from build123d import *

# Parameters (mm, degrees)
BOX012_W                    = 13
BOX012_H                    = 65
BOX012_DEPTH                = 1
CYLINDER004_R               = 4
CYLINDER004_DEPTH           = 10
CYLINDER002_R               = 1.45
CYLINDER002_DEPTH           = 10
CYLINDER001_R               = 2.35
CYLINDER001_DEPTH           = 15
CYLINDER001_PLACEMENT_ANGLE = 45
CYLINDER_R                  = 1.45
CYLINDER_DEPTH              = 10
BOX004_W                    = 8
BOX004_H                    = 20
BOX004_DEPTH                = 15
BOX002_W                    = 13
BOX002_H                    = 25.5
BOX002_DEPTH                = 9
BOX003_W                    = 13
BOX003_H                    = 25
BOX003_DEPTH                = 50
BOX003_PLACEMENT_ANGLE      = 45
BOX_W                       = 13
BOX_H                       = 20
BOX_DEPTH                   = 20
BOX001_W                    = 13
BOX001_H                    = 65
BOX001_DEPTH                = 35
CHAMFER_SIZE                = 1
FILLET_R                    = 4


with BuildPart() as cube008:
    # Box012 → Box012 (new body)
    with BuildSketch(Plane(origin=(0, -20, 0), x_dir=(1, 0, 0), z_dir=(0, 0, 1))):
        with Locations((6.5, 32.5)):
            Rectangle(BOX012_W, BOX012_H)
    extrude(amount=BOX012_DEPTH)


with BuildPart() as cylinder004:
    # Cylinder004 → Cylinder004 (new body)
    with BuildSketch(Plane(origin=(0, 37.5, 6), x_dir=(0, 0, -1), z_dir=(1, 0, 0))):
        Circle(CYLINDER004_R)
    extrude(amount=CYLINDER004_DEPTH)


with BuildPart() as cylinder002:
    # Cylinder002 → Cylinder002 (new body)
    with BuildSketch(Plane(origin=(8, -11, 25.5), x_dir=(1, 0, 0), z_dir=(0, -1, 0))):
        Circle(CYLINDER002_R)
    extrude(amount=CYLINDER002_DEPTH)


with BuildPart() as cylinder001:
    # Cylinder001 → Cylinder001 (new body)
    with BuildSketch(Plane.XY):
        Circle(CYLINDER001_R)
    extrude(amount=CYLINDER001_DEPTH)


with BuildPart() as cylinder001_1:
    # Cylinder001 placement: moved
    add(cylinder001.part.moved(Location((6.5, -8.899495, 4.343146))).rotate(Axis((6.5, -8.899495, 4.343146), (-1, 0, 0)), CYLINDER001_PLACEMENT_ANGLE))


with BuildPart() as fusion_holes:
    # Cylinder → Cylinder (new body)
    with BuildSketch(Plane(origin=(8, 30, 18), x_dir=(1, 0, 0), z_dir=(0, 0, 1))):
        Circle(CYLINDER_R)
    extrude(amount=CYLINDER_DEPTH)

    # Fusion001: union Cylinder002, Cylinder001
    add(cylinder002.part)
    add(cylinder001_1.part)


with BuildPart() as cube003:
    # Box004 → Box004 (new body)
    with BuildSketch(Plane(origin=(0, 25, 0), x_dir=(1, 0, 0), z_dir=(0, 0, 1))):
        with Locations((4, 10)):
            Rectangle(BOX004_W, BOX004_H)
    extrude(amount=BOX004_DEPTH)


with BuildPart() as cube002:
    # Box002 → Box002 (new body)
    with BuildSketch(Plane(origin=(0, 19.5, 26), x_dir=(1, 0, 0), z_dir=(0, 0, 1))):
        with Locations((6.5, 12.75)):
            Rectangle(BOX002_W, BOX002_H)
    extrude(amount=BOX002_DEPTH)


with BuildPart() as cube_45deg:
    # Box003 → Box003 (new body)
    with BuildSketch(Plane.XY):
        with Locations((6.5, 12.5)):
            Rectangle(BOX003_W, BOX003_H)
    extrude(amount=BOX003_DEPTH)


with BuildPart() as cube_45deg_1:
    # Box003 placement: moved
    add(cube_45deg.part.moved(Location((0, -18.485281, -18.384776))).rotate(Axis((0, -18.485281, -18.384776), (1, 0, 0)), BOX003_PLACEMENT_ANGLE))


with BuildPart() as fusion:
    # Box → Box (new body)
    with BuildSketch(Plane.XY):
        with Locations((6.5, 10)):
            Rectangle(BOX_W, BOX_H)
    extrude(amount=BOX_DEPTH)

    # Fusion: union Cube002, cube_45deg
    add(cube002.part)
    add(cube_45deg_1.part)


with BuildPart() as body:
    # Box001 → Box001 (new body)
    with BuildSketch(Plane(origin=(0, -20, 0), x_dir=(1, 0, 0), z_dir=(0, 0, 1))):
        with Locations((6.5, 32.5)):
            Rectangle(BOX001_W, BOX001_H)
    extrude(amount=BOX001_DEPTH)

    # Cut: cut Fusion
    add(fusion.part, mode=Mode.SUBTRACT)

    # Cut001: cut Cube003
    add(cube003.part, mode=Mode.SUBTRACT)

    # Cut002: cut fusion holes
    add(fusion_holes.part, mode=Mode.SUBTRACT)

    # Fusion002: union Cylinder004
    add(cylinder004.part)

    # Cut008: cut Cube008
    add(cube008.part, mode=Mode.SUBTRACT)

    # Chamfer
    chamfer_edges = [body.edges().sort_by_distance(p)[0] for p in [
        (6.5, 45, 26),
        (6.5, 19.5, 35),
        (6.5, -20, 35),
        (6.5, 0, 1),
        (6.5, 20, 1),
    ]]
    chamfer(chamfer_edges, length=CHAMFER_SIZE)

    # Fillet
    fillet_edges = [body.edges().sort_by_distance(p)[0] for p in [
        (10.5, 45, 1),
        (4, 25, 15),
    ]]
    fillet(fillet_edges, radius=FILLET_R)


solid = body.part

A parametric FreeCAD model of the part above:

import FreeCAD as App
import Part
import Sketcher
Q = App.Units.Quantity


def edges_at(feature, points):
    """Names of the edges that pass closest to the given points."""
    edges = feature.Shape.Edges
    near = lambda p: min(range(len(edges)), key=lambda i: edges[i].distToShape(Part.Vertex(*p))[0])
    return sorted({f"Edge{near(p) + 1}" for p in points})


def add_polygon(sketch, points):
    """Adds a closed chain of lines whose ends are joined by coincident constraints."""
    first, n = sketch.GeometryCount, len(points)
    for a, b in zip(points, points[1:] + points[:1]):
        sketch.addGeometry(Part.LineSegment(App.Vector(*a, 0), App.Vector(*b, 0)), False)
    for i in range(n):
        sketch.addConstraint(Sketcher.Constraint("Coincident", first + i, 2, first + (i + 1) % n, 1))

doc = App.newDocument("Part")
body = doc.addObject("PartDesign::Body", "Body")

# Sketch on XY plane
sketch1 = body.newObject("Sketcher::SketchObject", "Sketch")
sketch1.AttachmentSupport = (doc.getObject("XY_Plane"), [""])
sketch1.MapMode = "FlatFace"
add_polygon(sketch1, [(0, 45), (0, -20), (13, -20), (13, 45)])  # lines 0-3
sketch1.addConstraint([
    Sketcher.Constraint("Vertical", 0),
    Sketcher.Constraint("Horizontal", 1),
    Sketcher.Constraint("Vertical", 2),
    Sketcher.Constraint("Horizontal", 3),
    Sketcher.Constraint("PointOnObject", 0, 2, -2),
    Sketcher.Constraint("DistanceX", 1, 1, 1, 2, Q("13 mm")),
    Sketcher.Constraint("DistanceY", 0, 2, 0, 1, Q("65 mm")),
    Sketcher.Constraint("DistanceY", 0, 2, -1, 1, Q("20 mm")),
])
pad1 = body.newObject("PartDesign::Pad", "Pad")
pad1.Profile = sketch1
pad1.Length = 1
body2 = doc.addObject("PartDesign::Body", "Body001")

# Sketch on YZ plane
sketch2 = body2.newObject("Sketcher::SketchObject", "Sketch001")
sketch2.AttachmentSupport = (doc.getObject("YZ_Plane001"), [""])
sketch2.MapMode = "FlatFace"
sketch2.addGeometry(Part.Circle(App.Vector(37.5, 6, 0), App.Vector(0, 0, 1), 4), False)
sketch2.addConstraint([
    Sketcher.Constraint("Diameter", 0, Q("8 mm")),
    Sketcher.Constraint("DistanceY", -1, 1, 0, 3, Q("6 mm")),
    Sketcher.Constraint("DistanceX", -1, 1, 0, 3, Q("37.5 mm")),
])
pad2 = body2.newObject("PartDesign::Pad", "Pad001")
pad2.Profile = sketch2
pad2.Length = 10
body3 = doc.addObject("PartDesign::Body", "Body002")

# Sketch on XZ plane
sketch3 = body3.newObject("Sketcher::SketchObject", "Sketch002")
sketch3.AttachmentSupport = (doc.getObject("XZ_Plane002"), [""])
sketch3.MapMode = "FlatFace"
sketch3.AttachmentOffset = App.Placement(App.Vector(0, 0, 11), App.Rotation())
sketch3.addGeometry(Part.Circle(App.Vector(8, 25.5, 0), App.Vector(0, 0, 1), 1.4), False)
sketch3.addConstraint([
    Sketcher.Constraint("Diameter", 0, Q("2.9 mm")),
    Sketcher.Constraint("DistanceX", -1, 1, 0, 3, Q("8 mm")),
    Sketcher.Constraint("DistanceY", -1, 1, 0, 3, Q("25.5 mm")),
])
pad3 = body3.newObject("PartDesign::Pad", "Pad002")
pad3.Profile = sketch3
pad3.Length = 10
body4 = doc.addObject("PartDesign::Body", "Body003")

# Sketch on XY plane
sketch4 = body4.newObject("Sketcher::SketchObject", "Sketch003")
sketch4.AttachmentSupport = (doc.getObject("XY_Plane003"), [""])
sketch4.MapMode = "FlatFace"
sketch4.addGeometry(Part.Circle(App.Vector(0, 0, 0), App.Vector(0, 0, 1), 2.4), False)
sketch4.addConstraint([
    Sketcher.Constraint("Coincident", 0, 3, -1, 1),
    Sketcher.Constraint("Diameter", 0, Q("4.7 mm")),
])
pad4 = body4.newObject("PartDesign::Pad", "Pad003")
pad4.Profile = sketch4
pad4.Length = 15
body5 = doc.addObject("PartDesign::Body", "Body004")
doc.recompute()

body4.Placement = App.Placement(App.Vector(6.5, -8.899495, 4.343146), App.Rotation(App.Vector(-1, 0, 0), 45))
boolean = body5.newObject("PartDesign::Boolean", "Boolean")
boolean.Type = "Fuse"
boolean.addObjects([body4])
body6 = doc.addObject("PartDesign::Body", "Body005")
body6.AllowCompound = True

# Sketch on XY plane
sketch5 = body6.newObject("Sketcher::SketchObject", "Sketch004")
sketch5.AttachmentSupport = (doc.getObject("XY_Plane005"), [""])
sketch5.MapMode = "FlatFace"
sketch5.AttachmentOffset = App.Placement(App.Vector(0, 0, 18), App.Rotation())
sketch5.addGeometry(Part.Circle(App.Vector(8, 30, 0), App.Vector(0, 0, 1), 1.4), False)
sketch5.addConstraint([
    Sketcher.Constraint("Diameter", 0, Q("2.9 mm")),
    Sketcher.Constraint("DistanceX", -1, 1, 0, 3, Q("8 mm")),
    Sketcher.Constraint("DistanceY", -1, 1, 0, 3, Q("30 mm")),
])
pad5 = body6.newObject("PartDesign::Pad", "Pad004")
pad5.Profile = sketch5
pad5.Length = 10
doc.recompute()

boolean2 = body6.newObject("PartDesign::Boolean", "Boolean001")
boolean2.Type = "Fuse"
boolean2.addObjects([body3])
doc.recompute()

boolean3 = body6.newObject("PartDesign::Boolean", "Boolean002")
boolean3.Type = "Fuse"
boolean3.addObjects([body5])
body7 = doc.addObject("PartDesign::Body", "Body006")

# Sketch on XY plane
sketch6 = body7.newObject("Sketcher::SketchObject", "Sketch005")
sketch6.AttachmentSupport = (doc.getObject("XY_Plane006"), [""])
sketch6.MapMode = "FlatFace"
add_polygon(sketch6, [(0, 45), (0, 25), (8, 25), (8, 45)])  # lines 0-3
sketch6.addConstraint([
    Sketcher.Constraint("Vertical", 0),
    Sketcher.Constraint("Horizontal", 1),
    Sketcher.Constraint("Vertical", 2),
    Sketcher.Constraint("Horizontal", 3),
    Sketcher.Constraint("PointOnObject", 0, 2, -2),
    Sketcher.Constraint("DistanceX", 1, 1, 1, 2, Q("8 mm")),
    Sketcher.Constraint("DistanceY", 0, 2, 0, 1, Q("20 mm")),
    Sketcher.Constraint("DistanceY", -1, 1, 0, 2, Q("25 mm")),
])
pad6 = body7.newObject("PartDesign::Pad", "Pad005")
pad6.Profile = sketch6
pad6.Length = 15
body8 = doc.addObject("PartDesign::Body", "Body007")

# Sketch on XY plane
sketch7 = body8.newObject("Sketcher::SketchObject", "Sketch006")
sketch7.AttachmentSupport = (doc.getObject("XY_Plane007"), [""])
sketch7.MapMode = "FlatFace"
sketch7.AttachmentOffset = App.Placement(App.Vector(0, 0, 26), App.Rotation())
add_polygon(sketch7, [(0, 45), (0, 20), (13, 20), (13, 45)])  # lines 0-3
sketch7.addConstraint([
    Sketcher.Constraint("Vertical", 0),
    Sketcher.Constraint("Horizontal", 1),
    Sketcher.Constraint("Vertical", 2),
    Sketcher.Constraint("Horizontal", 3),
    Sketcher.Constraint("PointOnObject", 0, 2, -2),
    Sketcher.Constraint("DistanceX", 1, 1, 1, 2, Q("13 mm")),
    Sketcher.Constraint("DistanceY", 0, 2, 0, 1, Q("25.5 mm")),
    Sketcher.Constraint("DistanceY", -1, 1, 2, 2, Q("45 mm")),
])
pad7 = body8.newObject("PartDesign::Pad", "Pad006")
pad7.Profile = sketch7
pad7.Length = 9
body9 = doc.addObject("PartDesign::Body", "Body008")

# Sketch on XY plane
sketch8 = body9.newObject("Sketcher::SketchObject", "Sketch007")
sketch8.AttachmentSupport = (doc.getObject("XY_Plane008"), [""])
sketch8.MapMode = "FlatFace"
add_polygon(sketch8, [(0, 25), (0, 0), (13, 0), (13, 25)])  # lines 0-3
sketch8.addConstraint([
    Sketcher.Constraint("Vertical", 0),
    Sketcher.Constraint("Horizontal", 1),
    Sketcher.Constraint("Vertical", 2),
    Sketcher.Constraint("Horizontal", 3),
    Sketcher.Constraint("Coincident", 0, 2, -1, 1),
    Sketcher.Constraint("DistanceX", 1, 1, 1, 2, Q("13 mm")),
    Sketcher.Constraint("DistanceY", 0, 2, 0, 1, Q("25 mm")),
])
pad8 = body9.newObject("PartDesign::Pad", "Pad007")
pad8.Profile = sketch8
pad8.Length = 50
body10 = doc.addObject("PartDesign::Body", "Body009")
doc.recompute()

body9.Placement = App.Placement(App.Vector(0, -18.485281, -18.384776), App.Rotation(App.Vector(1, 0, 0), 45))
boolean4 = body10.newObject("PartDesign::Boolean", "Boolean003")
boolean4.Type = "Fuse"
boolean4.addObjects([body9])
body11 = doc.addObject("PartDesign::Body", "Body010")
body11.AllowCompound = True

# Sketch on XY plane
sketch9 = body11.newObject("Sketcher::SketchObject", "Sketch008")
sketch9.AttachmentSupport = (doc.getObject("XY_Plane010"), [""])
sketch9.MapMode = "FlatFace"
add_polygon(sketch9, [(0, 20), (0, 0), (13, 0), (13, 20)])  # lines 0-3
sketch9.addConstraint([
    Sketcher.Constraint("Vertical", 0),
    Sketcher.Constraint("Horizontal", 1),
    Sketcher.Constraint("Vertical", 2),
    Sketcher.Constraint("Horizontal", 3),
    Sketcher.Constraint("Coincident", 0, 2, -1, 1),
    Sketcher.Constraint("DistanceX", 1, 1, 1, 2, Q("13 mm")),
    Sketcher.Constraint("DistanceY", 0, 2, 0, 1, Q("20 mm")),
])
pad9 = body11.newObject("PartDesign::Pad", "Pad008")
pad9.Profile = sketch9
pad9.Length = 20
doc.recompute()

boolean5 = body11.newObject("PartDesign::Boolean", "Boolean004")
boolean5.Type = "Fuse"
boolean5.addObjects([body8])
doc.recompute()

boolean6 = body11.newObject("PartDesign::Boolean", "Boolean005")
boolean6.Type = "Fuse"
boolean6.addObjects([body10])
body12 = doc.addObject("PartDesign::Body", "Body011")

# Sketch on XY plane
sketch10 = body12.newObject("Sketcher::SketchObject", "Sketch009")
sketch10.AttachmentSupport = (doc.getObject("XY_Plane011"), [""])
sketch10.MapMode = "FlatFace"
add_polygon(sketch10, [(0, 45), (0, -20), (13, -20), (13, 45)])  # lines 0-3
sketch10.addConstraint([
    Sketcher.Constraint("Vertical", 0),
    Sketcher.Constraint("Horizontal", 1),
    Sketcher.Constraint("Vertical", 2),
    Sketcher.Constraint("Horizontal", 3),
    Sketcher.Constraint("PointOnObject", 0, 2, -2),
    Sketcher.Constraint("DistanceX", 1, 1, 1, 2, Q("13 mm")),
    Sketcher.Constraint("DistanceY", 0, 2, 0, 1, Q("65 mm")),
    Sketcher.Constraint("DistanceY", 0, 2, -1, 1, Q("20 mm")),
])
pad10 = body12.newObject("PartDesign::Pad", "Pad009")
pad10.Profile = sketch10
pad10.Length = 35
doc.recompute()

boolean7 = body12.newObject("PartDesign::Boolean", "Boolean006")
boolean7.Type = "Cut"
boolean7.addObjects([body11])
doc.recompute()

boolean8 = body12.newObject("PartDesign::Boolean", "Boolean007")
boolean8.Type = "Cut"
boolean8.addObjects([body7])
doc.recompute()

boolean9 = body12.newObject("PartDesign::Boolean", "Boolean008")
boolean9.Type = "Cut"
boolean9.addObjects([body6])
doc.recompute()

boolean10 = body12.newObject("PartDesign::Boolean", "Boolean009")
boolean10.Type = "Fuse"
boolean10.addObjects([body2])
doc.recompute()

boolean11 = body12.newObject("PartDesign::Boolean", "Boolean010")
boolean11.Type = "Cut"
boolean11.addObjects([body])
doc.recompute()

chamfer = body12.newObject("PartDesign::Chamfer", "Chamfer")
chamfer.Base = (boolean11, edges_at(boolean11, [
    (6.5, 45, 26),
    (6.5, 19.5, 35),
    (6.5, -20, 35),
    (6.5, 0, 1),
    (6.5, 20, 1),
]))
chamfer.Size = 1
doc.recompute()

fillet = body12.newObject("PartDesign::Fillet", "Fillet")
fillet.Base = (chamfer, edges_at(chamfer, [(10.5, 45, 1), (4, 25, 15)]))
fillet.Radius = 4

doc.recompute()
